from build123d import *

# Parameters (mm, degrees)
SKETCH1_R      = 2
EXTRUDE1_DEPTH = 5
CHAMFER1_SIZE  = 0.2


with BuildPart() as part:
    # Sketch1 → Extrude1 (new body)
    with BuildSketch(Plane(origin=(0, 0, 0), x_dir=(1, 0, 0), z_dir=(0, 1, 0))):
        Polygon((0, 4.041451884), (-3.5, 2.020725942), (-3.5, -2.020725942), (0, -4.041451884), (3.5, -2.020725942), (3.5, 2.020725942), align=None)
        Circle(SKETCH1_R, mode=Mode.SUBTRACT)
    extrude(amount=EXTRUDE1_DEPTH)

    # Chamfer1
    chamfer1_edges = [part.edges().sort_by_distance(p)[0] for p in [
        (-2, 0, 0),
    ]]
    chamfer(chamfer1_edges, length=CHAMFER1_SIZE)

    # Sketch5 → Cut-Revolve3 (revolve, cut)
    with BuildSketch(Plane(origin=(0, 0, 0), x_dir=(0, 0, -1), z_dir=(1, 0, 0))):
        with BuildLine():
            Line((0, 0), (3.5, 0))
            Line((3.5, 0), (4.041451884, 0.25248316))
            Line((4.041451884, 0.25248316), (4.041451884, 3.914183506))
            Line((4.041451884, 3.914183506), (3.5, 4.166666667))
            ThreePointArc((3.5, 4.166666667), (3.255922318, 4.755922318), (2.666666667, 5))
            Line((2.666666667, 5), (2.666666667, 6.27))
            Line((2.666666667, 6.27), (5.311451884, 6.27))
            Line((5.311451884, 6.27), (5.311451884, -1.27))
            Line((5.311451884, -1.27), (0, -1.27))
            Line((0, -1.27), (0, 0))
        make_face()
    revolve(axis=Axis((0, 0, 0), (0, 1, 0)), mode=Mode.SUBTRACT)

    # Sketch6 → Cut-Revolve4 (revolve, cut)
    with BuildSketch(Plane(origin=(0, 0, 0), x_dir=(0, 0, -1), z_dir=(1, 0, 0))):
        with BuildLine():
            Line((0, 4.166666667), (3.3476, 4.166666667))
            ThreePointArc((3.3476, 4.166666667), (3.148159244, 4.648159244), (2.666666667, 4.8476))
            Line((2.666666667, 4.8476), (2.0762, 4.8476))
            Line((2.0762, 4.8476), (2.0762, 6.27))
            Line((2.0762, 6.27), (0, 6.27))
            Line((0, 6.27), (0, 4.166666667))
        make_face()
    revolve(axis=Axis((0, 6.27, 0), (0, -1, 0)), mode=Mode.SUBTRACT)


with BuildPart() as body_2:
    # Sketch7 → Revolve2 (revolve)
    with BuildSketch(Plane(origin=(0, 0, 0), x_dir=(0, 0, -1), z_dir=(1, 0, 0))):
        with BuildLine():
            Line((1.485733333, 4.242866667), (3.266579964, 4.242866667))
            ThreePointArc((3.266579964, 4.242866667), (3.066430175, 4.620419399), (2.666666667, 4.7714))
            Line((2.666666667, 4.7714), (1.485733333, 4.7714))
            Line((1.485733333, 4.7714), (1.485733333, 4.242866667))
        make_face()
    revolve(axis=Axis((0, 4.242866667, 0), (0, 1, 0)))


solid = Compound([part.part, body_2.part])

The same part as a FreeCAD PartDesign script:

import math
import FreeCAD as App
import Part
import Sketcher
Q = App.Units.Quantity


def edges_at(feature, points):
    """Names of the edges that pass closest to the given points."""
    edges = feature.Shape.Edges
    near = lambda p: min(range(len(edges)), key=lambda i: edges[i].distToShape(Part.Vertex(*p))[0])
    return sorted({f"Edge{near(p) + 1}" for p in points})


def add_polygon(sketch, points):
    """Adds a closed chain of lines whose ends are joined by coincident constraints."""
    first, n = sketch.GeometryCount, len(points)
    for a, b in zip(points, points[1:] + points[:1]):
        sketch.addGeometry(Part.LineSegment(App.Vector(*a, 0), App.Vector(*b, 0)), False)
    for i in range(n):
        sketch.addConstraint(Sketcher.Constraint("Coincident", first + i, 2, first + (i + 1) % n, 1))

doc = App.newDocument("Part")
body = doc.addObject("PartDesign::Body", "Body")

sketch1 = body.newObject("Sketcher::SketchObject", "Sketch")
sketch1.AttachmentSupport = (doc.getObject("XZ_Plane"), [""])
sketch1.MapMode = "FlatFace"
add_polygon(sketch1, [(0, -4.041452), (-3.5, -2.020726), (-3.5, 2.020726), (0, 4.041452), (3.5, 2.020726), (3.5, -2.020726)])
sketch1.addGeometry(Part.Circle(App.Vector(0, 0, 0), App.Vector(0, 0, 1), 2), False)
sketch1.addConstraint([
    Sketcher.Constraint("Vertical", 1),
    Sketcher.Constraint("Vertical", 4),
    Sketcher.Constraint("Coincident", 6, 3, -1, 1),
    Sketcher.Constraint("Symmetric", 0, 2, 3, 2, -1, 1),
    Sketcher.Constraint("Symmetric", 2, 2, 5, 2, -1, 1),
    Sketcher.Constraint("PointOnObject", 2, 2, -2),
    Sketcher.Constraint("Parallel", 2, 5),
    Sketcher.Constraint("Horizontal", 1, 2, 3, 2),
    Sketcher.Constraint("Diameter", 6, 4.0),
    Sketcher.Constraint("Angle", 0, Q("150 deg")),
    Sketcher.Constraint("DistanceX", 1, 2, 3, 2, 7.0),
    Sketcher.Constraint("DistanceY", 1, 1, 1, 2, 4.041452),
])
pad1 = body.newObject("PartDesign::Pad", "Pad")
pad1.Profile = sketch1
pad1.Length = 5
pad1.Reversed = True
doc.recompute()

chamfer = body.newObject("PartDesign::Chamfer", "Chamfer")
chamfer.Base = (pad1, edges_at(pad1, [(-2, 0, 0)]))
chamfer.Size = 0.2

sketch2 = body.newObject("Sketcher::SketchObject", "Sketch001")
sketch2.AttachmentSupport = (doc.getObject("YZ_Plane"), [""])
sketch2.MapMode = "FlatFace"
sketch2.addGeometry([
    Part.LineSegment(App.Vector(0, -3.5, 0), App.Vector(0, 0, 0)),
    Part.LineSegment(App.Vector(0, 0, 0), App.Vector(-1.27, 0, 0)),
    Part.LineSegment(App.Vector(-1.27, 0, 0), App.Vector(-1.27, -5.311452, 0)),
    Part.LineSegment(App.Vector(-1.27, -5.311452, 0), App.Vector(6.27, -5.311452, 0)),
    Part.LineSegment(App.Vector(6.27, -5.311452, 0), App.Vector(6.27, -2.666667, 0)),
    Part.LineSegment(App.Vector(6.27, -2.666667, 0), App.Vector(5, -2.666667, 0)),
    Part.ArcOfCircle(Part.Circle(App.Vector(4.166667, -2.666667, 0), App.Vector(0, 0, 1), 0.833333), math.radians(-90), math.radians(0)),
    Part.LineSegment(App.Vector(4.166667, -3.5, 0), App.Vector(3.914184, -4.041452, 0)),
    Part.LineSegment(App.Vector(3.914184, -4.041452, 0), App.Vector(0.252483, -4.041452, 0)),
    Part.LineSegment(App.Vector(0.252483, -4.041452, 0), App.Vector(0, -3.5, 0)),
], False)
sketch2.addConstraint([
    Sketcher.Constraint("Coincident", 0, 2, 1, 1),
    Sketcher.Constraint("Coincident", 1, 2, 2, 1),
    Sketcher.Constraint("Coincident", 2, 2, 3, 1),
    Sketcher.Constraint("Coincident", 3, 2, 4, 1),
    Sketcher.Constraint("Coincident", 4, 2, 5, 1),
    Sketcher.Constraint("Coincident", 5, 2, 6, 2),
    Sketcher.Constraint("Coincident", 6, 1, 7, 1),
    Sketcher.Constraint("Coincident", 7, 2, 8, 1),
    Sketcher.Constraint("Coincident", 8, 2, 9, 1),
    Sketcher.Constraint("Coincident", 9, 2, 0, 1),
    Sketcher.Constraint("Vertical", 0),
    Sketcher.Constraint("Horizontal", 1),
    Sketcher.Constraint("Vertical", 2),
    Sketcher.Constraint("Horizontal", 3),
    Sketcher.Constraint("Vertical", 4),
    Sketcher.Constraint("Horizontal", 5),
    Sketcher.Constraint("Horizontal", 8),
    Sketcher.Constraint("Coincident", 0, 2, -1, 1),
    Sketcher.Constraint("Horizontal", 6, 3, 4, 2),
    Sketcher.Constraint("Horizontal", 6, 1, 9, 2),
    Sketcher.Constraint("Equal", 1, 5),
    Sketcher.Constraint("Equal", 7, 9),
    Sketcher.Constraint("Angle", 7, Q("-115 deg")),
    Sketcher.Constraint("DistanceY", 0, 1, 0, 2, 3.5),
    Sketcher.Constraint("DistanceX", -1, 1, 5, 2, 5.0),
    Sketcher.Constraint("DistanceX", 1, 2, 1, 1, 1.27),
    Sketcher.Constraint("DistanceY", 3, 2, 7, 2, 1.27),
    Sketcher.Constraint("DistanceX", 8, 2, 8, 1, 3.6617),
    Sketcher.Constraint("Radius", 6, 0.833333),
    Sketcher.Constraint("DistanceY", 2, 2, 2, 1, 5.311452),
])
groove = body.newObject("PartDesign::Groove", "Groove")
groove.Profile = sketch2
groove.ReferenceAxis = (sketch2, ["H_Axis"])
groove.Angle = 360

sketch3 = body.newObject("Sketcher::SketchObject", "Sketch002")
sketch3.AttachmentSupport = (doc.getObject("YZ_Plane"), [""])
sketch3.MapMode = "FlatFace"
sketch3.addGeometry([
    Part.LineSegment(App.Vector(4.166667, 0, 0), App.Vector(4.166667, -3.3476, 0)),
    Part.ArcOfCircle(Part.Circle(App.Vector(4.166667, -2.666667, 0), App.Vector(0, 0, 1), 0.680933), math.radians(-90), math.radians(0)),
    Part.LineSegment(App.Vector(4.8476, -2.666667, 0), App.Vector(4.8476, -2.0762, 0)),
    Part.LineSegment(App.Vector(4.8476, -2.0762, 0), App.Vector(6.27, -2.0762, 0)),
    Part.LineSegment(App.Vector(6.27, -2.0762, 0), App.Vector(6.27, 0, 0)),
    Part.LineSegment(App.Vector(6.27, 0, 0), App.Vector(4.166667, 0, 0)),
], False)
sketch3.addConstraint([
    Sketcher.Constraint("Coincident", 0, 2, 1, 1),
    Sketcher.Constraint("Tangent", 1, 2, 2, 1),
    Sketcher.Constraint("Coincident", 2, 2, 3, 1),
    Sketcher.Constraint("Coincident", 3, 2, 4, 1),
    Sketcher.Constraint("Coincident", 4, 2, 5, 1),
    Sketcher.Constraint("Coincident", 5, 2, 0, 1),
    Sketcher.Constraint("Vertical", 0),
    Sketcher.Constraint("Vertical", 2),
    Sketcher.Constraint("Horizontal", 3),
    Sketcher.Constraint("Vertical", 4),
    Sketcher.Constraint("Horizontal", 5),
    Sketcher.Constraint("PointOnObject", 4, 2, -1),
    Sketcher.Constraint("Vertical", 1, 3, 0, 2),
    Sketcher.Constraint("DistanceX", -1, 1, 3, 2, 6.27),
    Sketcher.Constraint("DistanceX", 3, 1, 3, 2, 1.4224),
    Sketcher.Constraint("DistanceY", 0, 2, 0, 1, 3.3476),
    Sketcher.Constraint("DistanceY", 4, 1, 4, 2, 2.0762),
    Sketcher.Constraint("Radius", 1, 0.680933),
])
groove2 = body.newObject("PartDesign::Groove", "Groove001")
groove2.Profile = sketch3
groove2.ReferenceAxis = (sketch3, ["H_Axis"])
groove2.Angle = 360
body2 = doc.addObject("PartDesign::Body", "Body001")

sketch4 = body2.newObject("Sketcher::SketchObject", "Sketch003")
sketch4.AttachmentSupport = (doc.getObject("YZ_Plane001"), [""])
sketch4.MapMode = "FlatFace"
sketch4.addGeometry([
    Part.LineSegment(App.Vector(4.242867, -1.485733, 0), App.Vector(4.242867, -3.26658, 0)),
    Part.ArcOfCircle(Part.Circle(App.Vector(4.166667, -2.666667, 0), App.Vector(0, 0, 1), 0.604733), math.radians(-82.761148), math.radians(0)),
    Part.LineSegment(App.Vector(4.7714, -2.666667, 0), App.Vector(4.7714, -1.485733, 0)),
    Part.LineSegment(App.Vector(4.7714, -1.485733, 0), App.Vector(4.242867, -1.485733, 0)),
], False)
sketch4.addConstraint([
    Sketcher.Constraint("Coincident", 0, 2, 1, 1),
    Sketcher.Constraint("Tangent", 1, 2, 2, 1),
    Sketcher.Constraint("Coincident", 2, 2, 3, 1),
    Sketcher.Constraint("Coincident", 3, 2, 0, 1),
    Sketcher.Constraint("Vertical", 0),
    Sketcher.Constraint("Vertical", 2),
    Sketcher.Constraint("Horizontal", 3),
    Sketcher.Constraint("Radius", 1, 0.604733),
    Sketcher.Constraint("DistanceX", -1, 1, 1, 2, 4.7714),
    Sketcher.Constraint("DistanceX", 1, 3, 0, 2, 0.0762),
    Sketcher.Constraint("DistanceY", 0, 2, 0, 1, 1.780847),
    Sketcher.Constraint("DistanceY", 0, 2, -1, 1, 3.26658),
])
revolution = body2.newObject("PartDesign::Revolution", "Revolution")
revolution.Profile = sketch4
revolution.ReferenceAxis = (sketch4, ["H_Axis"])
revolution.Angle = 360

doc.recompute()
